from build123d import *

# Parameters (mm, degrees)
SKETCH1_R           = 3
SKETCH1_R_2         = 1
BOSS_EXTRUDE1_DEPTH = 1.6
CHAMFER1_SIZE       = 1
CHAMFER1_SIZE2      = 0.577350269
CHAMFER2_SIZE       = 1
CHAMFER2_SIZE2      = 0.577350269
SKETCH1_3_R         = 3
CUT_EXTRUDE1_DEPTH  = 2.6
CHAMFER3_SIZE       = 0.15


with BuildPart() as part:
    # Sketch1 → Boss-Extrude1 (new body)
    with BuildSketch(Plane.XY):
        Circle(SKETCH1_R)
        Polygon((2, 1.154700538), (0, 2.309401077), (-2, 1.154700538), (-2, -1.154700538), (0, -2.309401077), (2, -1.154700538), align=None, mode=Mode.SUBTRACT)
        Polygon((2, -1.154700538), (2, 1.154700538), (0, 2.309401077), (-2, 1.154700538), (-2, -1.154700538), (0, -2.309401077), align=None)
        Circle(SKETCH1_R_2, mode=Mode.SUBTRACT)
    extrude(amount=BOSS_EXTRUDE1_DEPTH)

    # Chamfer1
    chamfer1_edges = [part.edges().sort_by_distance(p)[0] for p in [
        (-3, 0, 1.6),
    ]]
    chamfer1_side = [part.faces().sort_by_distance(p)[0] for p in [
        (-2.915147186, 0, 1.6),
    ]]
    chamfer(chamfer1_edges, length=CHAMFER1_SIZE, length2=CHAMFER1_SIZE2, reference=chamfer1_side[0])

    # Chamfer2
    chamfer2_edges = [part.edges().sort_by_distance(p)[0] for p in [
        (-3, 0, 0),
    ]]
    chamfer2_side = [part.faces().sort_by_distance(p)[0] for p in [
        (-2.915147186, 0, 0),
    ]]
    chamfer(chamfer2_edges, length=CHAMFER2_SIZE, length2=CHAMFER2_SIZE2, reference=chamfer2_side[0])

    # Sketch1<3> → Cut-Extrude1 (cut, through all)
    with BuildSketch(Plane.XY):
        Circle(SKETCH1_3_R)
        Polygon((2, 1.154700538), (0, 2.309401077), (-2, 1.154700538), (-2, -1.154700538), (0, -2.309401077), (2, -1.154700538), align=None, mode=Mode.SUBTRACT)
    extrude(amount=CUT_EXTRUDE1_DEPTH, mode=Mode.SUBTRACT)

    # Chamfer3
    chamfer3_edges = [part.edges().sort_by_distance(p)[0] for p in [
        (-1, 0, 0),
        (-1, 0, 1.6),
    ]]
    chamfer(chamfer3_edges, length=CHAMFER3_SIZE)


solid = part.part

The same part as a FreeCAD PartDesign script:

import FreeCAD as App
import Part
import Sketcher
Q = App.Units.Quantity


def edges_at(feature, points):
    """Names of the edges that pass closest to the given points."""
    edges = feature.Shape.Edges
    near = lambda p: min(range(len(edges)), key=lambda i: edges[i].distToShape(Part.Vertex(*p))[0])
    return sorted({f"Edge{near(p) + 1}" for p in points})

doc = App.newDocument("Part")
body = doc.addObject("PartDesign::Body", "Body")

# Sketch on XY plane
sketch1 = doc.addObject("Sketcher::SketchObject", "Sketch")
body.addObject(sketch1)
sketch1.AttachmentSupport = (doc.XY_Plane, [""])
sketch1.MapMode = "FlatFace"
sketch1.addGeometry([
    Part.Circle(App.Vector(0, 0, 0), App.Vector(0, 0, 1), 3),
    Part.Circle(App.Vector(0, 0, 0), App.Vector(0, 0, 1), 1),
], False)
sketch1.addConstraint([
    Sketcher.Constraint("Coincident", 0, 3, -1, 1),
    Sketcher.Constraint("Coincident", 1, 3, -1, 1),
    Sketcher.Constraint("Diameter", 0, Q("6 mm")),
    Sketcher.Constraint("Diameter", 1, Q("2 mm")),
])
pad1 = doc.addObject("PartDesign::Pad", "Pad")
body.addObject(pad1)
pad1.Profile = sketch1
pad1.Length = 1.6
doc.recompute()

chamfer = doc.addObject("PartDesign::Chamfer", "Chamfer")
body.addObject(chamfer)
chamfer.Base = (pad1, edges_at(pad1, [(-3, 0, 1.6)]))
chamfer.ChamferType = "Two distances"
chamfer.Size = 1
chamfer.Size2 = 0.57735
chamfer.FlipDirection = True
doc.recompute()

chamfer2 = doc.addObject("PartDesign::Chamfer", "Chamfer001")
body.addObject(chamfer2)
chamfer2.Base = (chamfer, edges_at(chamfer, [(-3, 0, 0)]))
chamfer2.ChamferType = "Two distances"
chamfer2.Size = 1
chamfer2.Size2 = 0.57735
chamfer2.FlipDirection = True

# Sketch on XY plane
sketch2 = doc.addObject("Sketcher::SketchObject", "Sketch001")
body.addObject(sketch2)
sketch2.AttachmentSupport = (doc.XY_Plane, [""])
sketch2.MapMode = "FlatFace"
sketch2.addGeometry([
    Part.Circle(App.Vector(0, 0, 0), App.Vector(0, 0, 1), 3),  # 0
    Part.LineSegment(App.Vector(0, 2.3, 0), App.Vector(2, 1.2, 0)),  # 1
    Part.LineSegment(App.Vector(2, 1.2, 0), App.Vector(2, -1.2, 0)),  # 2
    Part.LineSegment(App.Vector(2, -1.2, 0), App.Vector(0, -2.3, 0)),  # 3
    Part.LineSegment(App.Vector(0, -2.3, 0), App.Vector(-2, -1.2, 0)),  # 4
    Part.LineSegment(App.Vector(-2, -1.2, 0), App.Vector(-2, 1.2, 0)),  # 5
    Part.LineSegment(App.Vector(-2, 1.2, 0), App.Vector(0, 2.3, 0)),  # 6
], False)
sketch2.addConstraint([
    Sketcher.Constraint("Coincident", 1, 2, 2, 1),
    Sketcher.Constraint("Coincident", 2, 2, 3, 1),
    Sketcher.Constraint("Coincident", 3, 2, 4, 1),
    Sketcher.Constraint("Coincident", 4, 2, 5, 1),
    Sketcher.Constraint("Coincident", 5, 2, 6, 1),
    Sketcher.Constraint("Coincident", 6, 2, 1, 1),
    Sketcher.Constraint("Vertical", 2),
    Sketcher.Constraint("Vertical", 5),
    Sketcher.Constraint("Coincident", 0, 3, -1, 1),
    Sketcher.Constraint("Symmetric", 1, 2, 4, 2, -1, 1),
    Sketcher.Constraint("Symmetric", 3, 2, 6, 2, -1, 1),
    Sketcher.Constraint("PointOnObject", 3, 2, -2),
    Sketcher.Constraint("Parallel", 3, 6),
    Sketcher.Constraint("Horizontal", 2, 2, 4, 2),
    Sketcher.Constraint("Diameter", 0, Q("6 mm")),
    Sketcher.Constraint("Angle", 1, Q("-30 deg")),
    Sketcher.Constraint("DistanceX", -1, 1, 1, 2, Q("2 mm")),
    Sketcher.Constraint("DistanceY", 2, 2, 2, 1, Q("2.309401 mm")),
])
pocket1 = doc.addObject("PartDesign::Pocket", "Pocket")
body.addObject(pocket1)
pocket1.Profile = sketch2
pocket1.Type = "ThroughAll"
pocket1.Reversed = True
doc.recompute()

chamfer3 = doc.addObject("PartDesign::Chamfer", "Chamfer002")
body.addObject(chamfer3)
chamfer3.Base = (pocket1, edges_at(pocket1, [(-1, 0, 0), (-1, 0, 1.6)]))
chamfer3.Size = 0.15

doc.recompute()
